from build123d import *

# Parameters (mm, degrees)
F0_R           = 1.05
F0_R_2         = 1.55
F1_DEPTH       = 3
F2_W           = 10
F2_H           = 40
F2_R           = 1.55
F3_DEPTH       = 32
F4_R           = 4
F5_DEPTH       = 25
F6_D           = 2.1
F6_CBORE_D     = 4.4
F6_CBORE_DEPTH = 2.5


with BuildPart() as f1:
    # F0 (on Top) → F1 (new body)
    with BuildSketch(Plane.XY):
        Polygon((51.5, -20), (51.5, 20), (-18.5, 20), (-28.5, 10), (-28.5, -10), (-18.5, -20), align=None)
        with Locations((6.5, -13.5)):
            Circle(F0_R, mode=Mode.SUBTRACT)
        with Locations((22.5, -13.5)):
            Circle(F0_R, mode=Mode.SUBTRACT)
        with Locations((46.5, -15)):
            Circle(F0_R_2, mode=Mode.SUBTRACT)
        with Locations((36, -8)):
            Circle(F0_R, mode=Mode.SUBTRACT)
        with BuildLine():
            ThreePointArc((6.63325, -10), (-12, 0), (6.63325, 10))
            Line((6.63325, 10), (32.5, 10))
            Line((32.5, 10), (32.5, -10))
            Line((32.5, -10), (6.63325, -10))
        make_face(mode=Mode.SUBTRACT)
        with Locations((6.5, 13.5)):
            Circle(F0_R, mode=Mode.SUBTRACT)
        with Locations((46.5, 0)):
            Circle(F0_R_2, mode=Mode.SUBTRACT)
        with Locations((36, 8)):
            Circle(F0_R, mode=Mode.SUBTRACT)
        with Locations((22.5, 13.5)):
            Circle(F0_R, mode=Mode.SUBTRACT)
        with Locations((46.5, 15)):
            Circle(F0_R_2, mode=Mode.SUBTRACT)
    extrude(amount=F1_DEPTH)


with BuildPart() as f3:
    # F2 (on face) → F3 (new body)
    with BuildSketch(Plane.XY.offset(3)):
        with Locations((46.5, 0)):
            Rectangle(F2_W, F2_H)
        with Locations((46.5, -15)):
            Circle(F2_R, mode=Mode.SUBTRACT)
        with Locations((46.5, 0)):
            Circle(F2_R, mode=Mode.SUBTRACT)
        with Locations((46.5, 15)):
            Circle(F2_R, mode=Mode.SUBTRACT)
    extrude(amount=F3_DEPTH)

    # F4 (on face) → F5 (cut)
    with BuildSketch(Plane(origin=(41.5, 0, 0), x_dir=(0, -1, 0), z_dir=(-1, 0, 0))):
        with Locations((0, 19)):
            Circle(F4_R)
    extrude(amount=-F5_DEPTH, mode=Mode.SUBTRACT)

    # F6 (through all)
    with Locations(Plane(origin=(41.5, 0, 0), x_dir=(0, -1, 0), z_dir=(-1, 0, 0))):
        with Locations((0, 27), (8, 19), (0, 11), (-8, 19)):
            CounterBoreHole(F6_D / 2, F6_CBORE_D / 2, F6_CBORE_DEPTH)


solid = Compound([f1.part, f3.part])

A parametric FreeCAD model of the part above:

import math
import FreeCAD as App
import Part
import Sketcher

V = App.Vector


def add_polygon(sketch, points):
    """Adds a closed chain of lines whose ends are joined by coincident constraints."""
    first, n = sketch.GeometryCount, len(points)
    for a, b in zip(points, points[1:] + points[:1]):
        sketch.addGeometry(Part.LineSegment(App.Vector(*a, 0), App.Vector(*b, 0)), False)
    for i in range(n):
        sketch.addConstraint(Sketcher.Constraint("Coincident", first + i, 2, first + (i + 1) % n, 1))

doc = App.newDocument("Part")
body = doc.addObject("PartDesign::Body", "Body")

# Sketch on XY plane
sketch1 = doc.addObject("Sketcher::SketchObject", "Sketch")
body.addObject(sketch1)
sketch1.AttachmentSupport = (doc.XY_Plane, [""])
sketch1.MapMode = "FlatFace"
add_polygon(sketch1, [(51.5, -20), (51.5, 20), (-18.5, 20), (-28.5, 10), (-28.5, -10), (-18.5, -20)])  # lines 0-5
sketch1.addGeometry(Part.Circle(V(6.5, -13.5, 0), V(0, 0, 1), 1.1), False)  # 6
sketch1.addGeometry(Part.Circle(V(22.5, -13.5, 0), V(0, 0, 1), 1.1), False)  # 7
sketch1.addGeometry(Part.Circle(V(46.5, -15, 0), V(0, 0, 1), 1.6), False)  # 8
sketch1.addGeometry(Part.Circle(V(36, -8, 0), V(0, 0, 1), 1.1), False)  # 9
sketch1.addGeometry(Part.LineSegment(V(32.5, -10, 0), V(6.6, -10, 0)), False)  # 10
sketch1.addGeometry(Part.ArcOfCircle(Part.Circle(V(0, 0, 0), V(0, 0, 1), 12), math.radians(56), math.radians(304)), False)  # 11
sketch1.addGeometry(Part.LineSegment(V(6.6, 10, 0), V(32.5, 10, 0)), False)  # 12
sketch1.addGeometry(Part.LineSegment(V(32.5, 10, 0), V(32.5, -10, 0)), False)  # 13
sketch1.addGeometry(Part.Circle(V(6.5, 13.5, 0), V(0, 0, 1), 1.1), False)  # 14
sketch1.addGeometry(Part.Circle(V(46.5, 0, 0), V(0, 0, 1), 1.6), False)  # 15
sketch1.addGeometry(Part.Circle(V(36, 8, 0), V(0, 0, 1), 1.1), False)  # 16
sketch1.addGeometry(Part.Circle(V(22.5, 13.5, 0), V(0, 0, 1), 1.1), False)  # 17
sketch1.addGeometry(Part.Circle(V(46.5, 15, 0), V(0, 0, 1), 1.6), False)  # 18
sketch1.addConstraint(Sketcher.Constraint("Coincident", 10, 2, 11, 2))
sketch1.addConstraint(Sketcher.Constraint("Coincident", 11, 1, 12, 1))
sketch1.addConstraint(Sketcher.Constraint("Coincident", 12, 2, 13, 1))
sketch1.addConstraint(Sketcher.Constraint("Coincident", 13, 2, 10, 1))
sketch1.addConstraint(Sketcher.Constraint("Vertical", 0))
sketch1.addConstraint(Sketcher.Constraint("Horizontal", 1))
sketch1.addConstraint(Sketcher.Constraint("Vertical", 3))
sketch1.addConstraint(Sketcher.Constraint("Horizontal", 5))
sketch1.addConstraint(Sketcher.Constraint("Horizontal", 10))
sketch1.addConstraint(Sketcher.Constraint("Horizontal", 12))
sketch1.addConstraint(Sketcher.Constraint("Vertical", 13))
sketch1.addConstraint(Sketcher.Constraint("Coincident", 11, 3, -1, 1))
sketch1.addConstraint(Sketcher.Constraint("Equal", 6, 7))
sketch1.addConstraint(Sketcher.Constraint("Equal", 7, 9))
sketch1.addConstraint(Sketcher.Constraint("Equal", 9, 14))
sketch1.addConstraint(Sketcher.Constraint("Equal", 8, 15))
sketch1.addConstraint(Sketcher.Constraint("Equal", 14, 16))
sketch1.addConstraint(Sketcher.Constraint("Equal", 16, 17))
sketch1.addConstraint(Sketcher.Constraint("Equal", 15, 18))
sketch1.addConstraint(Sketcher.Constraint("Symmetric", 6, 3, 14, 3, -1))
sketch1.addConstraint(Sketcher.Constraint("Symmetric", 9, 3, 16, 3, -1))
sketch1.addConstraint(Sketcher.Constraint("Symmetric", 7, 3, 17, 3, -1))
sketch1.addConstraint(Sketcher.Constraint("Symmetric", 8, 3, 18, 3, -1))
sketch1.addConstraint(Sketcher.Constraint("Symmetric", 1, 2, 4, 2, -1))
sketch1.addConstraint(Sketcher.Constraint("PointOnObject", 15, 3, -1))
sketch1.addConstraint(Sketcher.Constraint("Perpendicular", 2, 4))
sketch1.addConstraint(Sketcher.Constraint("Horizontal", 6, 3, 7, 3))
sketch1.addConstraint(Sketcher.Constraint("Horizontal", 3, 2, 10, 2))
sketch1.addConstraint(Sketcher.Constraint("Horizontal", 2, 2, 11, 1))
sketch1.addConstraint(Sketcher.Constraint("Vertical", 8, 3, 15, 3))
sketch1.addConstraint(Sketcher.Constraint("Vertical", 10, 2, 11, 1))
sketch1.addConstraint(Sketcher.Constraint("Radius", 11, 12.0))
sketch1.addConstraint(Sketcher.Constraint("Diameter", 6, 2.1))
sketch1.addConstraint(Sketcher.Constraint("Diameter", 8, 3.1))
sketch1.addConstraint(Sketcher.Constraint("DistanceX", 1, 2, 1, 1, 70.0))
sketch1.addConstraint(Sketcher.Constraint("DistanceY", 0, 1, 0, 2, 40.0))
sketch1.addConstraint(Sketcher.Constraint("DistanceY", 3, 2, 3, 1, 20.0))
sketch1.addConstraint(Sketcher.Constraint("DistanceY", 8, 3, -1, 1, 15.0))
sketch1.addConstraint(Sketcher.Constraint("DistanceX", -1, 1, 9, 3, 36.0))
sketch1.addConstraint(Sketcher.Constraint("DistanceY", 9, 3, -1, 1, 8.0))
sketch1.addConstraint(Sketcher.Constraint("DistanceX", 6, 3, 7, 3, 16.0))
sketch1.addConstraint(Sketcher.Constraint("DistanceX", 7, 3, 8, 3, 24.0))
sketch1.addConstraint(Sketcher.Constraint("DistanceY", 6, 3, 14, 3, 27.0))
sketch1.addConstraint(Sketcher.Constraint("DistanceX", 18, 3, 0, 2, 5.0))
sketch1.addConstraint(Sketcher.Constraint("DistanceX", 17, 3, 12, 2, 10.0))
sketch1.addConstraint(Sketcher.Constraint("DistanceX", -1, 1, 6, 3, 6.5))
pad1 = doc.addObject("PartDesign::Pad", "Pad")
body.addObject(pad1)
pad1.Profile = sketch1
pad1.Length = 3
body2 = doc.addObject("PartDesign::Body", "Body001")

# Sketch on XY plane
sketch2 = doc.addObject("Sketcher::SketchObject", "Sketch001")
body2.addObject(sketch2)
sketch2.AttachmentSupport = (doc.getObject("XY_Plane001"), [""])
sketch2.MapMode = "FlatFace"
sketch2.AttachmentOffset = App.Placement(V(0, 0, 3), App.Rotation())
add_polygon(sketch2, [(41.5, 20), (41.5, -20), (51.5, -20), (51.5, 20)])  # lines 0-3
sketch2.addGeometry(Part.Circle(V(46.5, -15, 0), V(0, 0, 1), 1.6), False)  # 4
sketch2.addGeometry(Part.Circle(V(46.5, 0, 0), V(0, 0, 1), 1.6), False)  # 5
sketch2.addGeometry(Part.Circle(V(46.5, 15, 0), V(0, 0, 1), 1.6), False)  # 6
sketch2.addConstraint(Sketcher.Constraint("Vertical", 0))
sketch2.addConstraint(Sketcher.Constraint("Horizontal", 1))
sketch2.addConstraint(Sketcher.Constraint("Vertical", 2))
sketch2.addConstraint(Sketcher.Constraint("Horizontal", 3))
sketch2.addConstraint(Sketcher.Constraint("Equal", 4, 5))
sketch2.addConstraint(Sketcher.Constraint("Equal", 5, 6))
sketch2.addConstraint(Sketcher.Constraint("Symmetric", 4, 3, 6, 3, -1))
sketch2.addConstraint(Sketcher.Constraint("PointOnObject", 5, 3, -1))
sketch2.addConstraint(Sketcher.Constraint("Vertical", 4, 3, 5, 3))
sketch2.addConstraint(Sketcher.Constraint("Diameter", 4, 3.1))
sketch2.addConstraint(Sketcher.Constraint("DistanceX", 1, 1, 1, 2, 10.0))
sketch2.addConstraint(Sketcher.Constraint("DistanceY", 0, 2, 0, 1, 40.0))
sketch2.addConstraint(Sketcher.Constraint("DistanceY", 4, 3, -1, 1, 15.0))
sketch2.addConstraint(Sketcher.Constraint("DistanceY", 0, 2, -1, 1, 20.0))
sketch2.addConstraint(Sketcher.Constraint("DistanceX", 0, 2, 4, 3, 5.0))
sketch2.addConstraint(Sketcher.Constraint("DistanceX", -1, 1, 4, 3, 46.5))
pad2 = doc.addObject("PartDesign::Pad", "Pad001")
body2.addObject(pad2)
pad2.Profile = sketch2
pad2.Length = 32

# Sketch on YZ plane
sketch3 = doc.addObject("Sketcher::SketchObject", "Sketch002")
body2.addObject(sketch3)
sketch3.AttachmentSupport = (doc.getObject("YZ_Plane001"), [""])
sketch3.MapMode = "FlatFace"
sketch3.AttachmentOffset = App.Placement(V(0, 0, 41.5), App.Rotation())
sketch3.addGeometry(Part.Circle(V(0, 19, 0), V(0, 0, 1), 4), False)
sketch3.addConstraint(Sketcher.Constraint("PointOnObject", 0, 3, -2))
sketch3.addConstraint(Sketcher.Constraint("Diameter", 0, 8.0))
sketch3.addConstraint(Sketcher.Constraint("DistanceY", -1, 1, 0, 3, 19.0))
pocket1 = doc.addObject("PartDesign::Pocket", "Pocket")
body2.addObject(pocket1)
pocket1.Profile = sketch3
pocket1.Length = 25
pocket1.Reversed = True

# Sketch on YZ plane
sketch4 = doc.addObject("Sketcher::SketchObject", "Sketch003")
body2.addObject(sketch4)
sketch4.AttachmentSupport = (doc.getObject("YZ_Plane001"), [""])
sketch4.MapMode = "FlatFace"
sketch4.AttachmentOffset = App.Placement(V(0, 0, 41.5), App.Rotation())
sketch4.addGeometry(Part.Circle(V(0, 27, 0), V(0, 0, 1), 1.1), False)
sketch4.addGeometry(Part.Circle(V(-8, 19, 0), V(0, 0, 1), 1.1), False)
sketch4.addGeometry(Part.Circle(V(0, 11, 0), V(0, 0, 1), 1.1), False)
sketch4.addGeometry(Part.Circle(V(8, 19, 0), V(0, 0, 1), 1.1), False)
sketch4.addConstraint(Sketcher.Constraint("Equal", 0, 1))
sketch4.addConstraint(Sketcher.Constraint("Equal", 1, 2))
sketch4.addConstraint(Sketcher.Constraint("Equal", 2, 3))
sketch4.addConstraint(Sketcher.Constraint("Symmetric", 1, 3, 3, 3, -2))
sketch4.addConstraint(Sketcher.Constraint("PointOnObject", 0, 3, -2))
sketch4.addConstraint(Sketcher.Constraint("PointOnObject", 2, 3, -2))
sketch4.addConstraint(Sketcher.Constraint("Diameter", 0, 2.1))
sketch4.addConstraint(Sketcher.Constraint("DistanceY", -1, 1, 0, 3, 27.0))
sketch4.addConstraint(Sketcher.Constraint("DistanceX", 1, 3, -1, 1, 8.0))
sketch4.addConstraint(Sketcher.Constraint("DistanceY", -1, 1, 1, 3, 19.0))
sketch4.addConstraint(Sketcher.Constraint("DistanceY", -1, 1, 2, 3, 11.0))
doc.recompute()
hole = doc.addObject("PartDesign::Hole", "Hole")
body2.addObject(hole)
hole.Profile = sketch4
hole.ThreadType = "None"
hole.Diameter = 2.1
hole.DepthType = "ThroughAll"
hole.HoleCutType = "Counterbore"
hole.HoleCutDiameter = 4.4
hole.HoleCutDepth = 2.5
hole.Reversed = True

doc.recompute()
